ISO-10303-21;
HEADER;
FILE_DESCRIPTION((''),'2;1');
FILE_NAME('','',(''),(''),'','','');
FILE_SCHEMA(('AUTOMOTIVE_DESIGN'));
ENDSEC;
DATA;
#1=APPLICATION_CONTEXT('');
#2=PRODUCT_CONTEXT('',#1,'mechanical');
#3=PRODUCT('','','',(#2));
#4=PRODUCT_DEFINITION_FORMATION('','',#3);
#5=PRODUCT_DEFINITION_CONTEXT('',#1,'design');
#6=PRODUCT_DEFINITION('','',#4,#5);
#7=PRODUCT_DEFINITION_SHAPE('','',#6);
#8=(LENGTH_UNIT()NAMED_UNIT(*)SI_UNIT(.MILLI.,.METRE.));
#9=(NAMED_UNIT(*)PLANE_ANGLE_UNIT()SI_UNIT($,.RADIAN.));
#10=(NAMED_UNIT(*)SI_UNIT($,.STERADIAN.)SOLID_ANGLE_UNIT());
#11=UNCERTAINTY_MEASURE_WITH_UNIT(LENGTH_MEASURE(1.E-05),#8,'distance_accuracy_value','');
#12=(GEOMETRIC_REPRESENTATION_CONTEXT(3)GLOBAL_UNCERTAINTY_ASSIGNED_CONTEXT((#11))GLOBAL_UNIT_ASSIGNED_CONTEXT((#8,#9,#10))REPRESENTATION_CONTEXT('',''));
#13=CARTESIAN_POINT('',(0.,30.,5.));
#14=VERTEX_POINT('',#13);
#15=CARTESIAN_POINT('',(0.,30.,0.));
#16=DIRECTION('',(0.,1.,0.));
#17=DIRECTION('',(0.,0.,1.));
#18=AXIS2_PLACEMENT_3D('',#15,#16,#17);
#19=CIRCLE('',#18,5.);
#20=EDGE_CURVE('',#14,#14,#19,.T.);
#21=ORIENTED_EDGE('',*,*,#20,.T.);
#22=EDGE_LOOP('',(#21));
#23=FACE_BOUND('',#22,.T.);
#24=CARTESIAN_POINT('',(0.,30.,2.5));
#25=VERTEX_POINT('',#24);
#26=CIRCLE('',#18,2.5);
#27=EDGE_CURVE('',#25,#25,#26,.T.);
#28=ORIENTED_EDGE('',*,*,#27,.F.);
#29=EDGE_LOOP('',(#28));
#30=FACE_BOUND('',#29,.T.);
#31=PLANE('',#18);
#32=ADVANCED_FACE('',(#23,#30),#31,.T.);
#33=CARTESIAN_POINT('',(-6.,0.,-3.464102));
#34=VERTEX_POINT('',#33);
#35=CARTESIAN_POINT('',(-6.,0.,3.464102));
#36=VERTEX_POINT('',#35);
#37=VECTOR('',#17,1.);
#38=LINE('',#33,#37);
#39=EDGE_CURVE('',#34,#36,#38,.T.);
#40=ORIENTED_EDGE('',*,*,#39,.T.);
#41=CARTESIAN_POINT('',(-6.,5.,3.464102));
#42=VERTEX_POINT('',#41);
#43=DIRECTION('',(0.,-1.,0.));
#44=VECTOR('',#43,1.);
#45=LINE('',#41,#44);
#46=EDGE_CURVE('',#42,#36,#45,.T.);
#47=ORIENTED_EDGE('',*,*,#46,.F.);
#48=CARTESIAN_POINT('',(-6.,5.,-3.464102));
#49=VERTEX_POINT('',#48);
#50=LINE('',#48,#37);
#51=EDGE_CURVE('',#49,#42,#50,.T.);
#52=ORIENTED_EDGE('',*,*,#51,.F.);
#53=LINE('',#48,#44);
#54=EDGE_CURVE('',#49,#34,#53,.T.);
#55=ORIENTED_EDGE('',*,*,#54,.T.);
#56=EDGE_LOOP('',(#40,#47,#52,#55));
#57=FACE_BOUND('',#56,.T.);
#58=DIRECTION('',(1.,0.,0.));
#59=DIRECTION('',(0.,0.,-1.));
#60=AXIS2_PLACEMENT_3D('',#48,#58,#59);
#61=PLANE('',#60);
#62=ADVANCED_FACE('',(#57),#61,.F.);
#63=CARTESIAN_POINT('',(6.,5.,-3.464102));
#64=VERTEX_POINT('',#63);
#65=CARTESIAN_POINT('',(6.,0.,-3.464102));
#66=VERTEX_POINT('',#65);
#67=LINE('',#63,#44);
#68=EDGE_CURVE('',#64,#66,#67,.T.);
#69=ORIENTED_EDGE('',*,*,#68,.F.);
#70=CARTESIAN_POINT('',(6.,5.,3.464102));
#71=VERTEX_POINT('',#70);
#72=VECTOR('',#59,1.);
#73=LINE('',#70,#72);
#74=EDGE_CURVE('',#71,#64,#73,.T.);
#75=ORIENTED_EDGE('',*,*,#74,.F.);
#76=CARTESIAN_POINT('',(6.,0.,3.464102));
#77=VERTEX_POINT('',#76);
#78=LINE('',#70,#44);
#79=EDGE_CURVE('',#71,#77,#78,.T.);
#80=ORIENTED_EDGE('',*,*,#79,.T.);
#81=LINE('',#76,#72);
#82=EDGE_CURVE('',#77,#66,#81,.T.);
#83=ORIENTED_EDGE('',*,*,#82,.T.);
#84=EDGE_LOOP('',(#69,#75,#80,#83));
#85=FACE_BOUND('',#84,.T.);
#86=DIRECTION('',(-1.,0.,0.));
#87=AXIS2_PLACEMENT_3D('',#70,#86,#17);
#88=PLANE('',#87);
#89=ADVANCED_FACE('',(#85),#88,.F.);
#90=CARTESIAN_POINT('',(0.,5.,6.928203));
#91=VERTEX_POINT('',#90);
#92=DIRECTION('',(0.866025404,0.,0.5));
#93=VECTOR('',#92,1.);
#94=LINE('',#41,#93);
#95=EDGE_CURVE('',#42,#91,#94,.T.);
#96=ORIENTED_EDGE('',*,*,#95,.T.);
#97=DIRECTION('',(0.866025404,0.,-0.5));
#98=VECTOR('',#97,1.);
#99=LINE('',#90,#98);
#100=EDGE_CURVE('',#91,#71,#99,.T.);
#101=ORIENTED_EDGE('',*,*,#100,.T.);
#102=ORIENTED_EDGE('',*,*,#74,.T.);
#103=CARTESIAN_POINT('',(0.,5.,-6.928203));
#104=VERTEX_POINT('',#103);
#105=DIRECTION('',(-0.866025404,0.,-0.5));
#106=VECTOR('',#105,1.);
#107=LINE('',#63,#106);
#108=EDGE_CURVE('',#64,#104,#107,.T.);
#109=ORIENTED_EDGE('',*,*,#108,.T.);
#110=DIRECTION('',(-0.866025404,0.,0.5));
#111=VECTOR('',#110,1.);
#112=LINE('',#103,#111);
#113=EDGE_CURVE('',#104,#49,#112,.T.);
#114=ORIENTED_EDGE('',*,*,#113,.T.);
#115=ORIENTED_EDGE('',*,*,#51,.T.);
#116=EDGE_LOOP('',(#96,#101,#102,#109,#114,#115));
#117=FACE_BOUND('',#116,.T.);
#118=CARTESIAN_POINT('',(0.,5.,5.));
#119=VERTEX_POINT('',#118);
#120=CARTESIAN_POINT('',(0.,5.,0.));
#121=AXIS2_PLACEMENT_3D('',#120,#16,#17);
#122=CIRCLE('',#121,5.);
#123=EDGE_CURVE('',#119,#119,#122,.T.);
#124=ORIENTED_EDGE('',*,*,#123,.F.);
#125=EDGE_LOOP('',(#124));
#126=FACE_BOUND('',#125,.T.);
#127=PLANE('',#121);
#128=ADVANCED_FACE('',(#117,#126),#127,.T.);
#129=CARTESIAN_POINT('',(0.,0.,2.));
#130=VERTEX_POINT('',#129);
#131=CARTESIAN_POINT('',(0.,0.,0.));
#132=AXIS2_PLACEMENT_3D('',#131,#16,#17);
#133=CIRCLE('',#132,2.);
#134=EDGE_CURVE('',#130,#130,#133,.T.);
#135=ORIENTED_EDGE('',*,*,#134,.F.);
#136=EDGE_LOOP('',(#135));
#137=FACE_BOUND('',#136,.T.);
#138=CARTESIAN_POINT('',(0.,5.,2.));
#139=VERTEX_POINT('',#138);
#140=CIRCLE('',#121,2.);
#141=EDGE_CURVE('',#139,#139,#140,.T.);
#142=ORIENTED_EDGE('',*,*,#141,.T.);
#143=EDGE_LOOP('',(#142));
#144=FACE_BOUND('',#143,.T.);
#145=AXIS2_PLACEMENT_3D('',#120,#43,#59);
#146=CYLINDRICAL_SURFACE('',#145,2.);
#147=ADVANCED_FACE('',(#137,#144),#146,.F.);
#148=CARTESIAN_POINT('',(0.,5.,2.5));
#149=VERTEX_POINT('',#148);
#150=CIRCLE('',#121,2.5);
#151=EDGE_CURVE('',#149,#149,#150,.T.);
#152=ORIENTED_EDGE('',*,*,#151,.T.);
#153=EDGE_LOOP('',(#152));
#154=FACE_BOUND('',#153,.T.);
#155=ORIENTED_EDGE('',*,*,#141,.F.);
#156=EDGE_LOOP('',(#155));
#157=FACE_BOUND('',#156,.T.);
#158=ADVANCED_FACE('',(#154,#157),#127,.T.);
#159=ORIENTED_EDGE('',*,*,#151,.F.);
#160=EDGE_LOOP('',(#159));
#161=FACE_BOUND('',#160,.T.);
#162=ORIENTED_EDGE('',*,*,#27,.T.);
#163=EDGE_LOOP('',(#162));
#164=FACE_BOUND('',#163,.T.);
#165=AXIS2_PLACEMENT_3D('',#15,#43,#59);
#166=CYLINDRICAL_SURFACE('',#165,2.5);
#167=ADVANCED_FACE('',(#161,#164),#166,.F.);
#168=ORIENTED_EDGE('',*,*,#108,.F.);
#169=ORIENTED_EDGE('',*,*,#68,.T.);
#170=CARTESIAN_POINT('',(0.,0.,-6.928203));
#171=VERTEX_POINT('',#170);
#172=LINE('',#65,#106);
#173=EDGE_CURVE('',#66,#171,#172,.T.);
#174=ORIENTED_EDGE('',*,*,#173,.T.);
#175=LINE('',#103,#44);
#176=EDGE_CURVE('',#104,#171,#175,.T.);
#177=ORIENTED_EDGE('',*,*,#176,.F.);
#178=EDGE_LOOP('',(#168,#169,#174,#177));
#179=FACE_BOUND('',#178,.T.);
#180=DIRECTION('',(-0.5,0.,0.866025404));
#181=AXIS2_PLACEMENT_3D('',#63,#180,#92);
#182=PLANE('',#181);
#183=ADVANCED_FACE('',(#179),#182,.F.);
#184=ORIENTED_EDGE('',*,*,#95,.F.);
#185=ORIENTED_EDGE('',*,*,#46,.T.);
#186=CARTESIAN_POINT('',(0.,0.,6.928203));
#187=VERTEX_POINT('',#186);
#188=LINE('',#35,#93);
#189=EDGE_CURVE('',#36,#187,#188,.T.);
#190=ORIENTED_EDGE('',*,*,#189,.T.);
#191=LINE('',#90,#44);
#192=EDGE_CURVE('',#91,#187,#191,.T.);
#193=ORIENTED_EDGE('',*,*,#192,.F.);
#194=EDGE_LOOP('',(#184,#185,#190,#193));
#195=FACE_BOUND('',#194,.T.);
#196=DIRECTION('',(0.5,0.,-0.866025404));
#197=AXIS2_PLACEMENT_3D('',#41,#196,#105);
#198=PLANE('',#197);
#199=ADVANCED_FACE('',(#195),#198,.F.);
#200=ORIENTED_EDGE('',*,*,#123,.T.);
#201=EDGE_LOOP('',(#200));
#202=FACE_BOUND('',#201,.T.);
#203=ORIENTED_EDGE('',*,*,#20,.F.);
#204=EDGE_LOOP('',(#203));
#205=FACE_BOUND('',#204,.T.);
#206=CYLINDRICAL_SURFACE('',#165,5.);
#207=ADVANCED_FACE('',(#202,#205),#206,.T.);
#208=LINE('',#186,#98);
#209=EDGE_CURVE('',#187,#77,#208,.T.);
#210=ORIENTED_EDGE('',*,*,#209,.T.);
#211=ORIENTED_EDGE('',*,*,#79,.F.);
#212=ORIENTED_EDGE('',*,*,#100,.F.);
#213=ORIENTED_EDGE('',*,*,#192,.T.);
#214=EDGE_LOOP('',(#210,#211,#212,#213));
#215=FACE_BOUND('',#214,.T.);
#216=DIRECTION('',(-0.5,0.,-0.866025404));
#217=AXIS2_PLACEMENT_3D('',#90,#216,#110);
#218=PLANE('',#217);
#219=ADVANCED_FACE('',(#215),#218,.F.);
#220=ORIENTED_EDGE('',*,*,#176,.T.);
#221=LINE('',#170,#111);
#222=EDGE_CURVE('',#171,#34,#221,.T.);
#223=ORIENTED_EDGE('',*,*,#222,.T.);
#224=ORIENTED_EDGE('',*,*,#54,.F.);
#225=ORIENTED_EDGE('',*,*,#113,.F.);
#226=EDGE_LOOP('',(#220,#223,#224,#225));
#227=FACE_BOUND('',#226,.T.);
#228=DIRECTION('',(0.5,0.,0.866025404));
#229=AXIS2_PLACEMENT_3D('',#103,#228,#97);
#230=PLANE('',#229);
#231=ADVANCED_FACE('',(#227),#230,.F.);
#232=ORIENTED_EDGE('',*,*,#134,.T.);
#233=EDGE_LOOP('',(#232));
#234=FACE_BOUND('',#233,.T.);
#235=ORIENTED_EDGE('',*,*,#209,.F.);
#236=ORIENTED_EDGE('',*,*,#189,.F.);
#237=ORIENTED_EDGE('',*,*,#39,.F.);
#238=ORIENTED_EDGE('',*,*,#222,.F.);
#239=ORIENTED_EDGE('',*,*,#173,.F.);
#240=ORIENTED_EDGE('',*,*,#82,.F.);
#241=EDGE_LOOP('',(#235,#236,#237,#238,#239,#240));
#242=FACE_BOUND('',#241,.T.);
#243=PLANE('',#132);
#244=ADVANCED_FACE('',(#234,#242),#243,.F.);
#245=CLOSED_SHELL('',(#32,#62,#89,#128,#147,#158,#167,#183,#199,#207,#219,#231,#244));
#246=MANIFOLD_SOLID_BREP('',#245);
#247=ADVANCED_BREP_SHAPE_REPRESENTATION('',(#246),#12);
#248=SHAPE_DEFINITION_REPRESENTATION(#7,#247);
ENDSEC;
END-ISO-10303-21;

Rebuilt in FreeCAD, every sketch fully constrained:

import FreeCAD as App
import Part
import Sketcher
from FreeCAD import Vector
Q = App.Units.Quantity

doc = App.newDocument("Part")
body = doc.addObject("PartDesign::Body", "Body")

# Sketch on XZ plane
sketch1 = body.newObject("Sketcher::SketchObject", "Sketch")
sketch1.AttachmentSupport = (doc.getObject("XZ_Plane"), [""])
sketch1.MapMode = "FlatFace"
sketch1.addGeometry(Part.LineSegment(Vector(0, -6.9, 0), Vector(-6, -3.5, 0)), False)
sketch1.addGeometry(Part.LineSegment(Vector(-6, -3.5, 0), Vector(-6, 3.5, 0)), False)
sketch1.addGeometry(Part.LineSegment(Vector(-6, 3.5, 0), Vector(0, 6.9, 0)), False)
sketch1.addGeometry(Part.LineSegment(Vector(0, 6.9, 0), Vector(6, 3.5, 0)), False)
sketch1.addGeometry(Part.LineSegment(Vector(6, 3.5, 0), Vector(6, -3.5, 0)), False)
sketch1.addGeometry(Part.LineSegment(Vector(6, -3.5, 0), Vector(0, -6.9, 0)), False)
sketch1.addGeometry(Part.Circle(Vector(0, 0, 0), Vector(0, 0, 1), 2), False)
sketch1.addConstraint(Sketcher.Constraint("Coincident", 0, 2, 1, 1))
sketch1.addConstraint(Sketcher.Constraint("Coincident", 1, 2, 2, 1))
sketch1.addConstraint(Sketcher.Constraint("Coincident", 2, 2, 3, 1))
sketch1.addConstraint(Sketcher.Constraint("Coincident", 3, 2, 4, 1))
sketch1.addConstraint(Sketcher.Constraint("Coincident", 4, 2, 5, 1))
sketch1.addConstraint(Sketcher.Constraint("Coincident", 5, 2, 0, 1))
sketch1.addConstraint(Sketcher.Constraint("Vertical", 1))
sketch1.addConstraint(Sketcher.Constraint("Vertical", 4))
sketch1.addConstraint(Sketcher.Constraint("Coincident", 6, 3, -1, 1))
sketch1.addConstraint(Sketcher.Constraint("Symmetric", 0, 2, 3, 2, -1, 1))
sketch1.addConstraint(Sketcher.Constraint("Symmetric", 2, 2, 5, 2, -1, 1))
sketch1.addConstraint(Sketcher.Constraint("PointOnObject", 2, 2, -2))
sketch1.addConstraint(Sketcher.Constraint("Parallel", 2, 5))
sketch1.addConstraint(Sketcher.Constraint("Horizontal", 1, 2, 3, 2))
sketch1.addConstraint(Sketcher.Constraint("Diameter", 6, Q("4 mm")))
sketch1.addConstraint(Sketcher.Constraint("Angle", 0, Q("150 deg")))
sketch1.addConstraint(Sketcher.Constraint("DistanceX", 0, 2, -1, 1, Q("6 mm")))
sketch1.addConstraint(Sketcher.Constraint("DistanceY", 0, 2, -1, 1, Q("3.464102 mm")))
pad1 = body.newObject("PartDesign::Pad", "Pad")
pad1.Profile = sketch1
pad1.Length = 5
pad1.Reversed = True

# Sketch on XZ plane
sketch2 = body.newObject("Sketcher::SketchObject", "Sketch001")
sketch2.AttachmentSupport = (doc.getObject("XZ_Plane"), [""])
sketch2.MapMode = "FlatFace"
sketch2.AttachmentOffset = App.Placement(Vector(0, 0, -5), App.Rotation())
sketch2.addGeometry(Part.Circle(Vector(0, 0, 0), Vector(0, 0, 1), 5), False)
sketch2.addGeometry(Part.Circle(Vector(0, 0, 0), Vector(0, 0, 1), 2.5), False)
sketch2.addConstraint(Sketcher.Constraint("Coincident", 0, 3, -1, 1))
sketch2.addConstraint(Sketcher.Constraint("Coincident", 1, 3, -1, 1))
sketch2.addConstraint(Sketcher.Constraint("Diameter", 0, Q("10 mm")))
sketch2.addConstraint(Sketcher.Constraint("Diameter", 1, Q("5 mm")))
pad2 = body.newObject("PartDesign::Pad", "Pad001")
pad2.Profile = sketch2
pad2.Length = 25
pad2.Reversed = True

doc.recompute()
